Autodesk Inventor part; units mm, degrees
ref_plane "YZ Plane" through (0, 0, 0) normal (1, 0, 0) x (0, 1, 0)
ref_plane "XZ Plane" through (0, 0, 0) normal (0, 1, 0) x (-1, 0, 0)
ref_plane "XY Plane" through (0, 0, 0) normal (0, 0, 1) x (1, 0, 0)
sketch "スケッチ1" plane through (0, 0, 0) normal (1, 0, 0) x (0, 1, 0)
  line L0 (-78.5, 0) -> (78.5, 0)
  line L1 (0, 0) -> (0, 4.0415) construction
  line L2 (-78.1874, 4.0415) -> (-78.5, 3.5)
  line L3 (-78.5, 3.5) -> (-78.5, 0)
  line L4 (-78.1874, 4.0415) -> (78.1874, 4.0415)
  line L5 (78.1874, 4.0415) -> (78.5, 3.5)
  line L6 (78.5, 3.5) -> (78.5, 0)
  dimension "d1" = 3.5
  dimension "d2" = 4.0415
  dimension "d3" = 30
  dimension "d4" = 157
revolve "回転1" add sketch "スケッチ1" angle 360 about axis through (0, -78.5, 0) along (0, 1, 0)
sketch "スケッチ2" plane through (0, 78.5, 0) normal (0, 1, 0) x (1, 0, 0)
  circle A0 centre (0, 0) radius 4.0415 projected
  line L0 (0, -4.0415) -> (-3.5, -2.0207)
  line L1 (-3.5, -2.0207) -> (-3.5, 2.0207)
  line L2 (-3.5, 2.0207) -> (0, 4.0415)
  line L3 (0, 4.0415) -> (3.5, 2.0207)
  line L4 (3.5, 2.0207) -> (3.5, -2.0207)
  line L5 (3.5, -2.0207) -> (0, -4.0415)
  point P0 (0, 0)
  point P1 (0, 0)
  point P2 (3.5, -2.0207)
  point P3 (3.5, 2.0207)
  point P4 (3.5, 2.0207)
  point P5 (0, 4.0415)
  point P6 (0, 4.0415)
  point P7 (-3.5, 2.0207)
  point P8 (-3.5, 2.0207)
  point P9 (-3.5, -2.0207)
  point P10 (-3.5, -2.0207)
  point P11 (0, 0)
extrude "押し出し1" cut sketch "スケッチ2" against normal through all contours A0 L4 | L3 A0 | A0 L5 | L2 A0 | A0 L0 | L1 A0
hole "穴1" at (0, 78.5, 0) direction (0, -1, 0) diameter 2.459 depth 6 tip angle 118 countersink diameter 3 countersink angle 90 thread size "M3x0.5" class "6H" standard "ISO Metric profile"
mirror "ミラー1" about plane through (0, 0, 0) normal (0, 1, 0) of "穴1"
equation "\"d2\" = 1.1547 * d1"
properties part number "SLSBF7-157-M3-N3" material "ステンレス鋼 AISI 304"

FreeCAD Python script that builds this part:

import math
import FreeCAD as App
import Part
import Sketcher

V = App.Vector
Q = App.Units.Quantity

doc = App.newDocument("Part")
params = doc.addObject("Spreadsheet::Sheet", "Params")
for row, (alias, value) in enumerate([
    ("sketch1_width", "157 mm"),
    ("sketch1_height", "3.5 mm"),
    ("revolution_angle", "360 deg"),
    ("hole_diameter", "2.459 mm"),
    ("hole_depth", "6 mm"),
    ("hole_csink_diameter", "3 mm"),
], start=1):
    params.set(f"A{row}", alias)
    params.set(f"B{row}", "=" + value)
    params.setAlias(f"B{row}", alias)

body = doc.addObject("PartDesign::Body", "Body")

# Sketch on YZ plane
sketch1 = body.newObject("Sketcher::SketchObject", "Sketch")
sketch1.AttachmentSupport = (doc.getObject("YZ_Plane"), [""])
sketch1.MapMode = "FlatFace"
sketch1.addGeometry([
    Part.LineSegment(V(-78.5, 3.5, 0), V(-78.5, 0, 0)),  # 0
    Part.LineSegment(V(-78.5, 0, 0), V(78.5, 0, 0)),  # 1
    Part.LineSegment(V(78.5, 0, 0), V(78.5, 3.5, 0)),  # 2
    Part.LineSegment(V(78.5, 3.5, 0), V(78.2, 4, 0)),  # 3
    Part.LineSegment(V(78.2, 4, 0), V(-78.2, 4, 0)),  # 4
    Part.LineSegment(V(-78.2, 4, 0), V(-78.5, 3.5, 0)),  # 5
], False)
sketch1.addConstraint([
    Sketcher.Constraint("Coincident", 0, 2, 1, 1),
    Sketcher.Constraint("Coincident", 1, 2, 2, 1),
    Sketcher.Constraint("Coincident", 2, 2, 3, 1),
    Sketcher.Constraint("Coincident", 3, 2, 4, 1),
    Sketcher.Constraint("Coincident", 4, 2, 5, 1),
    Sketcher.Constraint("Coincident", 5, 2, 0, 1),
    Sketcher.Constraint("Vertical", 0),
    Sketcher.Constraint("Horizontal", 1),
    Sketcher.Constraint("Vertical", 2),
    Sketcher.Constraint("Horizontal", 4),
    Sketcher.Constraint("Symmetric", 0, 2, 1, 2, -1, 1),
    Sketcher.Constraint("Horizontal", 2, 2, 5, 2),
    Sketcher.Constraint("Equal", 3, 5),
    Sketcher.Constraint("DistanceX", 1, 1, 1, 2, 157.0),
    Sketcher.Constraint("DistanceY", 0, 2, 0, 1, 3.5),
    Sketcher.Constraint("DistanceY", -1, 1, 3, 2, 4.0415),
    Sketcher.Constraint("DistanceX", 4, 2, 4, 1, 156.3748),
])
sketch1.setExpression("Constraints[13]", "Params.sketch1_width")
sketch1.setExpression("Constraints[14]", "Params.sketch1_height")
revolution = body.newObject("PartDesign::Revolution", "Revolution")
revolution.Profile = sketch1
revolution.ReferenceAxis = (sketch1, ["H_Axis"])
revolution.setExpression("Angle", "Params.revolution_angle")

# Sketch on XZ plane
sketch2 = body.newObject("Sketcher::SketchObject", "Sketch001")
sketch2.AttachmentSupport = (doc.getObject("XZ_Plane"), [""])
sketch2.MapMode = "FlatFace"
sketch2.AttachmentOffset = App.Placement(V(0, 0, -78.5), App.Rotation())
sketch2.addGeometry([
    Part.ArcOfCircle(Part.Circle(V(0, 0, 0), V(0, 0, 1), 4), math.radians(-30), math.radians(30)),  # 0
    Part.LineSegment(V(3.5, 2, 0), V(3.5, -2, 0)),  # 1
    Part.LineSegment(V(0, -4, 0), V(3.5, -2, 0)),  # 2
    Part.ArcOfCircle(Part.Circle(V(0, 0, 0), V(0, 0, 1), 4), math.radians(-90), math.radians(-30)),  # 3
    Part.ArcOfCircle(Part.Circle(V(0, 0, 0), V(0, 0, 1), 4), math.radians(30), math.radians(90)),  # 4
    Part.LineSegment(V(0, 4, 0), V(3.5, 2, 0)),  # 5
    Part.LineSegment(V(-3.5, -2, 0), V(0, -4, 0)),  # 6
    Part.ArcOfCircle(Part.Circle(V(0, 0, 0), V(0, 0, 1), 4), math.radians(-150), math.radians(-90)),  # 7
    Part.ArcOfCircle(Part.Circle(V(0, 0, 0), V(0, 0, 1), 4), math.radians(90), math.radians(150)),  # 8
    Part.LineSegment(V(0, 4, 0), V(-3.5, 2, 0)),  # 9
    Part.LineSegment(V(-3.5, 2, 0), V(-3.5, -2, 0)),  # 10
    Part.ArcOfCircle(Part.Circle(V(0, 0, 0), V(0, 0, 1), 4), math.radians(150), math.radians(210)),  # 11
], False)
sketch2.addConstraint([
    Sketcher.Constraint("Coincident", 0, 1, 1, 2),
    Sketcher.Constraint("Coincident", 1, 1, 0, 2),
    Sketcher.Constraint("Coincident", 2, 1, 3, 1),
    Sketcher.Constraint("Coincident", 3, 2, 2, 2),
    Sketcher.Constraint("Coincident", 4, 1, 5, 2),
    Sketcher.Constraint("Coincident", 5, 1, 4, 2),
    Sketcher.Constraint("Coincident", 6, 1, 7, 1),
    Sketcher.Constraint("Coincident", 7, 2, 6, 2),
    Sketcher.Constraint("Coincident", 8, 1, 9, 1),
    Sketcher.Constraint("Coincident", 9, 2, 8, 2),
    Sketcher.Constraint("Coincident", 10, 1, 11, 1),
    Sketcher.Constraint("Coincident", 11, 2, 10, 2),
    Sketcher.Constraint("Vertical", 1),
    Sketcher.Constraint("Vertical", 10),
    Sketcher.Constraint("Coincident", 0, 3, -1, 1),
    Sketcher.Constraint("Coincident", 3, 3, -1, 1),
    Sketcher.Constraint("Coincident", 4, 3, -1, 1),
    Sketcher.Constraint("Coincident", 7, 3, -1, 1),
    Sketcher.Constraint("Coincident", 8, 3, -1, 1),
    Sketcher.Constraint("Coincident", 11, 3, -1, 1),
    Sketcher.Constraint("Coincident", 3, 2, 0, 1),
    Sketcher.Constraint("Coincident", 4, 1, 1, 1),
    Sketcher.Constraint("Coincident", 7, 2, 2, 1),
    Sketcher.Constraint("Coincident", 8, 1, 5, 1),
    Sketcher.Constraint("Coincident", 10, 1, 9, 2),
    Sketcher.Constraint("PointOnObject", 2, 1, -2),
    Sketcher.Constraint("PointOnObject", 5, 1, -2),
    Sketcher.Constraint("Parallel", 5, 6),
    Sketcher.Constraint("Parallel", 2, 9),
    Sketcher.Constraint("Angle", 2, Q("30.001 deg")),
    Sketcher.Constraint("DistanceX", -1, 1, 0, 1, 3.5),
])
pocket1 = body.newObject("PartDesign::Pocket", "Pocket")
pocket1.Profile = sketch2
pocket1.Type = "ThroughAll"
pocket1.Reversed = True

# Sketch on XZ plane
sketch3 = body.newObject("Sketcher::SketchObject", "Sketch002")
sketch3.AttachmentSupport = (doc.getObject("XZ_Plane"), [""])
sketch3.MapMode = "FlatFace"
sketch3.AttachmentOffset = App.Placement(V(0, 0, -78.5), App.Rotation())
sketch3.addGeometry(Part.Circle(V(0, 0, 0), V(0, 0, 1), 1.2), False)
sketch3.addConstraint([
    Sketcher.Constraint("Coincident", 0, 3, -1, 1),
    Sketcher.Constraint("Diameter", 0, 2.459),
])
doc.recompute()
hole = body.newObject("PartDesign::Hole", "Hole")
hole.Profile = sketch3
hole.ThreadType = "None"
hole.setExpression("Diameter", "Params.hole_diameter")
hole.DepthType = "Dimension"
hole.setExpression("Depth", "Params.hole_depth")
hole.DrillPoint = "Angled"
hole.DrillPointAngle = 118
hole.HoleCutType = "Countersink"
hole.setExpression("HoleCutDiameter", "Params.hole_csink_diameter")
hole.HoleCutCountersinkAngle = 90
hole.Reversed = True
doc.recompute()

mirrored = body.newObject("PartDesign::Mirrored", "Mirrored")
mirrored.Originals = [hole]
mirrored.MirrorPlane = (doc.getObject("XZ_Plane"), [""])
body.Tip = mirrored

doc.recompute()
